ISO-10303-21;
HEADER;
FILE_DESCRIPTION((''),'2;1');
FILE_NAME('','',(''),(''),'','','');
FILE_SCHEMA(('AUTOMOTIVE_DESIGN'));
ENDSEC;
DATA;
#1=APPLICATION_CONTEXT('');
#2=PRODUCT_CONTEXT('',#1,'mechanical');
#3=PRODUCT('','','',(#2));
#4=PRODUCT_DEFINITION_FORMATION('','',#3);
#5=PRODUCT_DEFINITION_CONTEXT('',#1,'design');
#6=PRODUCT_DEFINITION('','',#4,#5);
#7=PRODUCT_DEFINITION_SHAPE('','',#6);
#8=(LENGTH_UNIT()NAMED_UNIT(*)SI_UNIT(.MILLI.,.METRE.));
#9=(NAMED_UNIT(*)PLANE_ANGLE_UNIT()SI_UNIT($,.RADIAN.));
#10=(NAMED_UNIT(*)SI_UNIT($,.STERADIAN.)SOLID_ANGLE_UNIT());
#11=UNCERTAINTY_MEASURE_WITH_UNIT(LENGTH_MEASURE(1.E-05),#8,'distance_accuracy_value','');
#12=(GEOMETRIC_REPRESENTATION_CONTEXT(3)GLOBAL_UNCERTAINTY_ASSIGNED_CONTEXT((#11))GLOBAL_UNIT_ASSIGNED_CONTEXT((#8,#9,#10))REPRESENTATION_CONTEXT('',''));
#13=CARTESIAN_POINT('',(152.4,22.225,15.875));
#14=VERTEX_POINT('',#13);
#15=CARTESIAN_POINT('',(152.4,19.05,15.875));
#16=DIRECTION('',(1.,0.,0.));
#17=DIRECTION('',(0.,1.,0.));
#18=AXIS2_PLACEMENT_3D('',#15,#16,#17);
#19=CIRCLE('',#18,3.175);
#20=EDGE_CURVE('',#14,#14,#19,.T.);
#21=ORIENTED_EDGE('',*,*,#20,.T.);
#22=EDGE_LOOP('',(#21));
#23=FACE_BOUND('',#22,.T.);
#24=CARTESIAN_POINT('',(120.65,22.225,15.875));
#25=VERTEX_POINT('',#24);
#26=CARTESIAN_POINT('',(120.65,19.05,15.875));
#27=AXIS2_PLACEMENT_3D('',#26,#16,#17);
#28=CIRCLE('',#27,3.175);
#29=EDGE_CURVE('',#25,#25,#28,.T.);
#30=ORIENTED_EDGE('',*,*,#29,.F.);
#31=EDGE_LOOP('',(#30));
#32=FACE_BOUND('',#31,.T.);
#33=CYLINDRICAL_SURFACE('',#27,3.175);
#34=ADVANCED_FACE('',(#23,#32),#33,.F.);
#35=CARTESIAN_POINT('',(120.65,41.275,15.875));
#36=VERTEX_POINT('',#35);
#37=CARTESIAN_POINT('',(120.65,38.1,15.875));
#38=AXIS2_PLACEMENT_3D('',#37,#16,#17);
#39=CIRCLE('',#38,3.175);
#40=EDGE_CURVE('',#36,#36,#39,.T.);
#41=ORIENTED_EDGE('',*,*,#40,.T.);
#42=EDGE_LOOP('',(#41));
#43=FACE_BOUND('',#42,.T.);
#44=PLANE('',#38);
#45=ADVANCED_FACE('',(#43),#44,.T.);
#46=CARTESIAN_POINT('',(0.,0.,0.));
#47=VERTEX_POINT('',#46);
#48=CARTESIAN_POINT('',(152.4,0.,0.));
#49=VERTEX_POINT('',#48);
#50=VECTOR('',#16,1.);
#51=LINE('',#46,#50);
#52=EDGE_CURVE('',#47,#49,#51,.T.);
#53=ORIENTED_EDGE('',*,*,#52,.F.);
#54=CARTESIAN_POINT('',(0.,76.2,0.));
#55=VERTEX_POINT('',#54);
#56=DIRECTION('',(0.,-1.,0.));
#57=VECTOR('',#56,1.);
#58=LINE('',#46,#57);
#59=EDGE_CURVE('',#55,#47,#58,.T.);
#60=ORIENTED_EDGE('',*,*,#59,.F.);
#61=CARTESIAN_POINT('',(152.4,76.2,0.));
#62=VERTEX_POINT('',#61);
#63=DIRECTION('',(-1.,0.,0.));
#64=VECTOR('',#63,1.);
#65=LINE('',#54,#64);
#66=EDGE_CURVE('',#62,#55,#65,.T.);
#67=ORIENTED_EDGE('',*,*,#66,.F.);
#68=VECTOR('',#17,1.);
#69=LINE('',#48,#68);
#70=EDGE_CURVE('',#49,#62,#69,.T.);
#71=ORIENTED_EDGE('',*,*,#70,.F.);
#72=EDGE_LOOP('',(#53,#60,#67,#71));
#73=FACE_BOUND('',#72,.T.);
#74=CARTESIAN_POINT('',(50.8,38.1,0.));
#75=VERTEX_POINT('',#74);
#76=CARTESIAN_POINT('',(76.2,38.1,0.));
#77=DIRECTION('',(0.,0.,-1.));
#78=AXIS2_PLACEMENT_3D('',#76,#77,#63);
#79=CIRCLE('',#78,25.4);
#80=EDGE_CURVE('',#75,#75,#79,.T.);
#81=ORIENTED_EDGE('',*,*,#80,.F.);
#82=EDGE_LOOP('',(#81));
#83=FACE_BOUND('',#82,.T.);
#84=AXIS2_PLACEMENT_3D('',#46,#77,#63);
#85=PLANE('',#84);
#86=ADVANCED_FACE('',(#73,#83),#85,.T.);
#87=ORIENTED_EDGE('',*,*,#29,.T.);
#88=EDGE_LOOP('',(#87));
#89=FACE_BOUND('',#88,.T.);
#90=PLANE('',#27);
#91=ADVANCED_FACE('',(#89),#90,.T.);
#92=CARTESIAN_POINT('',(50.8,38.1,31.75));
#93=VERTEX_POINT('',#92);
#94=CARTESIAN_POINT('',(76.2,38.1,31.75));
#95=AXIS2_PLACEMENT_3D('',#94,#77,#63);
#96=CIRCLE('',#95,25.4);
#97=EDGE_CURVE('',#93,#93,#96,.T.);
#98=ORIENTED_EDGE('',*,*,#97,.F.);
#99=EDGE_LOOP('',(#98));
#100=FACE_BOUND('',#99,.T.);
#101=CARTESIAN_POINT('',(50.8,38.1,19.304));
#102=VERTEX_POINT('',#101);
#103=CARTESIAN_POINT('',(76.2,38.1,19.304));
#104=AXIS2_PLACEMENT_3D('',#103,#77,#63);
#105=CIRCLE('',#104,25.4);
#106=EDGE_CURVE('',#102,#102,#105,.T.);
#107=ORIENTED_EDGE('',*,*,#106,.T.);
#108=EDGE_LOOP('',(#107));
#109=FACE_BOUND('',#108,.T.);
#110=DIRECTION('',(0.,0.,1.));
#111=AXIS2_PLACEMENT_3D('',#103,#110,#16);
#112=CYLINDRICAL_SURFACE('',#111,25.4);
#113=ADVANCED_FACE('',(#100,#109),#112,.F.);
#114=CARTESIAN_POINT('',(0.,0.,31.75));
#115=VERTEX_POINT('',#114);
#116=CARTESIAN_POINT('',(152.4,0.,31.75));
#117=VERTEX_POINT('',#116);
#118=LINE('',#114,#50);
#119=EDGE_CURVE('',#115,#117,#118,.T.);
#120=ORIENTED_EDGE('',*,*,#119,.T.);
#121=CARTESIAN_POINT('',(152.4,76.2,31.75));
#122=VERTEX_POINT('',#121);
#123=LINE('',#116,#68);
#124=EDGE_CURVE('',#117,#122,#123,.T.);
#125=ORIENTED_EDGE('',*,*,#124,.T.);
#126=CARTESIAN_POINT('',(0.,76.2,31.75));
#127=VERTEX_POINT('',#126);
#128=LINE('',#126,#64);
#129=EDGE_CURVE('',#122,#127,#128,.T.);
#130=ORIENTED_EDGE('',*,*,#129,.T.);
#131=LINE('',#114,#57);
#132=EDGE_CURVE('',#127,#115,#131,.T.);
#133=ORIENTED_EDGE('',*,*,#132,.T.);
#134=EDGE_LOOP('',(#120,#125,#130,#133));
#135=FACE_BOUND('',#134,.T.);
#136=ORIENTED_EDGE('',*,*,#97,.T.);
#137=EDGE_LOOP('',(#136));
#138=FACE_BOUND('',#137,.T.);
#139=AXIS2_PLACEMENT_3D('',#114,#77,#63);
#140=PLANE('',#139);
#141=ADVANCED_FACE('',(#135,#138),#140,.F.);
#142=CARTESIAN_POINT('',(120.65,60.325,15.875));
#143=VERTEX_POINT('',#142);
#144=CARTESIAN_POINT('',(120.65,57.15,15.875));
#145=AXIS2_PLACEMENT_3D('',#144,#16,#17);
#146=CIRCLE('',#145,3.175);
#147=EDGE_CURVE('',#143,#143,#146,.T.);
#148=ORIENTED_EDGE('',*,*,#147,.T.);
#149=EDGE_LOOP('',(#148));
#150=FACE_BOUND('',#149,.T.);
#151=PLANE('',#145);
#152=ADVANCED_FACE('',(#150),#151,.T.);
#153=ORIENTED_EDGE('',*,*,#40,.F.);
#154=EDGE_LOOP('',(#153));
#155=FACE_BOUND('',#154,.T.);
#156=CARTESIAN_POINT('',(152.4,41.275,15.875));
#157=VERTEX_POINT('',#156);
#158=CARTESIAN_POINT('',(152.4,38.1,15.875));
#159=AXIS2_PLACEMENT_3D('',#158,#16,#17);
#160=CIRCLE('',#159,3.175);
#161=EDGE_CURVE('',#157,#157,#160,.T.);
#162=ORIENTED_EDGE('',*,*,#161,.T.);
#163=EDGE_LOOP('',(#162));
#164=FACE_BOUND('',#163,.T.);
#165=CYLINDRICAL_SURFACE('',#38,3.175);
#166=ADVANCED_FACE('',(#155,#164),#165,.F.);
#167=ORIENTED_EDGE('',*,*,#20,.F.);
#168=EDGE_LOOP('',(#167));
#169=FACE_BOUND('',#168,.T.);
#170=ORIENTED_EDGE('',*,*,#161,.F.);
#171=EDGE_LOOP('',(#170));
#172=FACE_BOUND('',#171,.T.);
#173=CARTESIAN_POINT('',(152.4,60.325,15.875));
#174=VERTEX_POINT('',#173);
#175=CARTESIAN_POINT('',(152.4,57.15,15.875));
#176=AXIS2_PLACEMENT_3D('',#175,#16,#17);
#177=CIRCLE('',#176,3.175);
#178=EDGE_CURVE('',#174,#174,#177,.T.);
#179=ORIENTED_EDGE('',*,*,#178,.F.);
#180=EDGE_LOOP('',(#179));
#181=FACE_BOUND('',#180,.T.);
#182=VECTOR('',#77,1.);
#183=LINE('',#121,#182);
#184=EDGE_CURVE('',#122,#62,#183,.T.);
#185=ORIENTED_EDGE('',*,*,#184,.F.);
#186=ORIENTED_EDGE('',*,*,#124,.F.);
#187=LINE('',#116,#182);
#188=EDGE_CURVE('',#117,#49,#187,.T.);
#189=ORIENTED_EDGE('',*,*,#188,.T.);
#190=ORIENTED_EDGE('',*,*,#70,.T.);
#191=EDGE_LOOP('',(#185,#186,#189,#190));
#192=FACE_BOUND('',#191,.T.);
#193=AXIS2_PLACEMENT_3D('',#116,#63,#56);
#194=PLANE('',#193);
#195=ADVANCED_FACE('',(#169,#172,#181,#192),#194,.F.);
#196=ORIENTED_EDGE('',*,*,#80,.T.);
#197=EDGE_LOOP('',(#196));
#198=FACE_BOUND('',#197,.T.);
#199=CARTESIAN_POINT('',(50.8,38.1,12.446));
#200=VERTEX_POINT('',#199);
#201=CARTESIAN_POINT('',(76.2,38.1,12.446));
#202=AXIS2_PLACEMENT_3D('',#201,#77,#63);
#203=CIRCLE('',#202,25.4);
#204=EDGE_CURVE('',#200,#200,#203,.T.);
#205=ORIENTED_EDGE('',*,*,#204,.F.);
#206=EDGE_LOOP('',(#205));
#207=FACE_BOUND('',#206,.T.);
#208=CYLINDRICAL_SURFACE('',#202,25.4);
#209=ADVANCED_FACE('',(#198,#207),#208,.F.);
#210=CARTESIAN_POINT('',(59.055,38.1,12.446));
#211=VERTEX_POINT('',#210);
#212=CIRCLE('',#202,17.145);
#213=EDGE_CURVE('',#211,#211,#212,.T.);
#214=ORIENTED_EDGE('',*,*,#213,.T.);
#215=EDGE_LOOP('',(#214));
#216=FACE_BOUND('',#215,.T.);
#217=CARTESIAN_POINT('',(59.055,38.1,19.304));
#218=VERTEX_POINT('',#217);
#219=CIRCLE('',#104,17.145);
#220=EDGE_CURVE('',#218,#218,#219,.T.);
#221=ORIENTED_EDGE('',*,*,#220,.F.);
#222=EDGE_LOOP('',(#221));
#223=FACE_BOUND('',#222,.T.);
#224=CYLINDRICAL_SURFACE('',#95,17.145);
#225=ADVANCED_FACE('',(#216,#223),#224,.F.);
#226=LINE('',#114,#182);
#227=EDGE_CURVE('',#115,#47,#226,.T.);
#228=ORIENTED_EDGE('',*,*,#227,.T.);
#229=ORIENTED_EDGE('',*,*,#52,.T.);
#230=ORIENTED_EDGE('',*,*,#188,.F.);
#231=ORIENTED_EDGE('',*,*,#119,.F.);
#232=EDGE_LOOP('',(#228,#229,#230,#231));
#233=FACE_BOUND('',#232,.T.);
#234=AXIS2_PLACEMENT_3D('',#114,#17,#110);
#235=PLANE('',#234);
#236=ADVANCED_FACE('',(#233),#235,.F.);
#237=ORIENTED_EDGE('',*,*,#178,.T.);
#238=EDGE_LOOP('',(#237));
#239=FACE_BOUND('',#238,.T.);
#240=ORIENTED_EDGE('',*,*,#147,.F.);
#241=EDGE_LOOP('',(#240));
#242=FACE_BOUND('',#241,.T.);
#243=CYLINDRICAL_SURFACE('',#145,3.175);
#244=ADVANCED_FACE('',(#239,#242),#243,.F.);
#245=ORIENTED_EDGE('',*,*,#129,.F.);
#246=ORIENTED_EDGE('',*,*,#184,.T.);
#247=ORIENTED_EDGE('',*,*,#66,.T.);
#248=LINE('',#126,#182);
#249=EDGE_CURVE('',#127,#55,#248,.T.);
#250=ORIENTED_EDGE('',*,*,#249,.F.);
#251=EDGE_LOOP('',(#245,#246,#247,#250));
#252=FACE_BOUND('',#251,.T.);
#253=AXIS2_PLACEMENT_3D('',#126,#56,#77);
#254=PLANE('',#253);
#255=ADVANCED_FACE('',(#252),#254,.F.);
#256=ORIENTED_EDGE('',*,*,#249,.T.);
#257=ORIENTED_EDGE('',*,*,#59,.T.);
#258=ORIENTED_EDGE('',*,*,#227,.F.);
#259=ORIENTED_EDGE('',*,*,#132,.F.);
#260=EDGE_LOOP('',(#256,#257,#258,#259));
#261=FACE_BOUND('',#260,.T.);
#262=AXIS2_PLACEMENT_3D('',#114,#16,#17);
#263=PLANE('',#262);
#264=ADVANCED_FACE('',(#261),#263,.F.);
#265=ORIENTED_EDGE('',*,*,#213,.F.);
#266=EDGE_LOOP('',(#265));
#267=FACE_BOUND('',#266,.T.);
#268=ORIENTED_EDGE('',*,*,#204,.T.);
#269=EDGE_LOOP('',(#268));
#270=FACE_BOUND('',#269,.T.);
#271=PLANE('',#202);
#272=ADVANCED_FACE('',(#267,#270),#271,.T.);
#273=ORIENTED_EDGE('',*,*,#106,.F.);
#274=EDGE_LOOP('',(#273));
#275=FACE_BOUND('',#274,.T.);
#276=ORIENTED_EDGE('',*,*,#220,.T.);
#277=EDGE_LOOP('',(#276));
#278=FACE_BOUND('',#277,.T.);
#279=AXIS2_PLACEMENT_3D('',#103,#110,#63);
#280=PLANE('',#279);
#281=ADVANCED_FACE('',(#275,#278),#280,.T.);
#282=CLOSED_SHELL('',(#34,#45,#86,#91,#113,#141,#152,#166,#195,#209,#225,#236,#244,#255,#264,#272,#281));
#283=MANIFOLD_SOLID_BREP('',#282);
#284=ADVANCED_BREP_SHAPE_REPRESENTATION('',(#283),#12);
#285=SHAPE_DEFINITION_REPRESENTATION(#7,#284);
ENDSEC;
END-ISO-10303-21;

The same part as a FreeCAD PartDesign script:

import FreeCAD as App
import Part
import Sketcher

V = App.Vector
Q = App.Units.Quantity


def add_polygon(sketch, points):
    """Adds a closed chain of lines whose ends are joined by coincident constraints."""
    first, n = sketch.GeometryCount, len(points)
    for a, b in zip(points, points[1:] + points[:1]):
        sketch.addGeometry(Part.LineSegment(App.Vector(*a, 0), App.Vector(*b, 0)), False)
    for i in range(n):
        sketch.addConstraint(Sketcher.Constraint("Coincident", first + i, 2, first + (i + 1) % n, 1))

doc = App.newDocument("Part")
body = doc.addObject("PartDesign::Body", "Body")

# Sketch on XY plane
sketch1 = body.newObject("Sketcher::SketchObject", "Sketch")
sketch1.AttachmentSupport = (doc.getObject("XY_Plane"), [""])
sketch1.MapMode = "FlatFace"
add_polygon(sketch1, [(0, 76), (0, 0), (152, 0), (152, 76)])  # lines 0-3
sketch1.addConstraint([
    Sketcher.Constraint("Vertical", 0),
    Sketcher.Constraint("Horizontal", 1),
    Sketcher.Constraint("Vertical", 2),
    Sketcher.Constraint("Horizontal", 3),
    Sketcher.Constraint("Coincident", 0, 2, -1, 1),
    Sketcher.Constraint("DistanceX", 1, 1, 1, 2, Q("6 in")),
    Sketcher.Constraint("DistanceY", 0, 2, 0, 1, Q("3 in")),
])
pad1 = body.newObject("PartDesign::Pad", "Pad")
pad1.Profile = sketch1
pad1.Length = Q("1.25 in")

# Sketch on XY plane
sketch2 = body.newObject("Sketcher::SketchObject", "Sketch001")
sketch2.AttachmentSupport = (doc.getObject("XY_Plane"), [""])
sketch2.MapMode = "FlatFace"
sketch2.addGeometry(Part.Circle(V(76, 38, 0), V(0, 0, 1), 17), False)
sketch2.addConstraint([
    Sketcher.Constraint("Diameter", 0, Q("1.35 in")),
    Sketcher.Constraint("DistanceX", -1, 1, 0, 3, Q("3 in")),
    Sketcher.Constraint("DistanceY", -1, 1, 0, 3, Q("1.5 in")),
])
pocket1 = body.newObject("PartDesign::Pocket", "Pocket")
pocket1.Profile = sketch2
pocket1.Type = "ThroughAll"
pocket1.Reversed = True

# Sketch on XY plane
sketch3 = body.newObject("Sketcher::SketchObject", "Sketch002")
sketch3.AttachmentSupport = (doc.getObject("XY_Plane"), [""])
sketch3.MapMode = "FlatFace"
sketch3.addGeometry([
    Part.Circle(V(76, 38, 0), V(0, 0, 1), 25),
    Part.Circle(V(76, 38, 0), V(0, 0, 1), 17),
], False)
sketch3.addConstraint([
    Sketcher.Constraint("Coincident", 1, 3, 0, 3),
    Sketcher.Constraint("Diameter", 0, Q("2 in")),
    Sketcher.Constraint("Diameter", 1, Q("1.35 in")),
    Sketcher.Constraint("DistanceX", -1, 1, 0, 3, Q("3 in")),
    Sketcher.Constraint("DistanceY", -1, 1, 0, 3, Q("1.5 in")),
])
pocket2 = body.newObject("PartDesign::Pocket", "Pocket001")
pocket2.Profile = sketch3
pocket2.Length = Q("0.49 in")
pocket2.Reversed = True
doc.recompute()

datumplane = body.newObject("PartDesign::Plane", "DatumPlane")
datumplane.AttachmentSupport = (doc.getObject("XY_Plane"), [""])
datumplane.MapMode = "FlatFace"
datumplane.AttachmentOffset = App.Placement(V(0, 0, 0.625 * 25.4), App.Rotation())
mirrored = body.newObject("PartDesign::Mirrored", "Mirrored")
mirrored.Originals = [pocket2]
mirrored.MirrorPlane = (datumplane, [""])
body.Tip = mirrored

# Sketch on YZ plane
sketch4 = body.newObject("Sketcher::SketchObject", "Sketch003")
sketch4.AttachmentSupport = (doc.getObject("YZ_Plane"), [""])
sketch4.MapMode = "FlatFace"
sketch4.AttachmentOffset = App.Placement(V(0, 0, 6 * 25.4), App.Rotation())
sketch4.addGeometry([
    Part.Circle(V(57.1, 15.9, 0), V(0, 0, 1), 3.2),
    Part.Circle(V(19.1, 15.9, 0), V(0, 0, 1), 3.2),
    Part.Circle(V(38.1, 15.9, 0), V(0, 0, 1), 3.2),
], False)
sketch4.addConstraint([
    Sketcher.Constraint("Equal", 0, 1),
    Sketcher.Constraint("Equal", 1, 2),
    Sketcher.Constraint("Horizontal", 0, 3, 1, 3),
    Sketcher.Constraint("Horizontal", 1, 3, 2, 3),
    Sketcher.Constraint("Diameter", 0, Q("0.25 in")),
    Sketcher.Constraint("DistanceX", -1, 1, 2, 3, Q("1.5 in")),
    Sketcher.Constraint("DistanceX", 1, 3, 0, 3, Q("1.5 in")),
    Sketcher.Constraint("DistanceX", -1, 1, 0, 3, Q("2.25 in")),
    Sketcher.Constraint("DistanceY", -1, 1, 0, 3, Q("0.625 in")),
])
pocket3 = body.newObject("PartDesign::Pocket", "Pocket002")
pocket3.Profile = sketch4
pocket3.Length = Q("1.25 in")

doc.recompute()
